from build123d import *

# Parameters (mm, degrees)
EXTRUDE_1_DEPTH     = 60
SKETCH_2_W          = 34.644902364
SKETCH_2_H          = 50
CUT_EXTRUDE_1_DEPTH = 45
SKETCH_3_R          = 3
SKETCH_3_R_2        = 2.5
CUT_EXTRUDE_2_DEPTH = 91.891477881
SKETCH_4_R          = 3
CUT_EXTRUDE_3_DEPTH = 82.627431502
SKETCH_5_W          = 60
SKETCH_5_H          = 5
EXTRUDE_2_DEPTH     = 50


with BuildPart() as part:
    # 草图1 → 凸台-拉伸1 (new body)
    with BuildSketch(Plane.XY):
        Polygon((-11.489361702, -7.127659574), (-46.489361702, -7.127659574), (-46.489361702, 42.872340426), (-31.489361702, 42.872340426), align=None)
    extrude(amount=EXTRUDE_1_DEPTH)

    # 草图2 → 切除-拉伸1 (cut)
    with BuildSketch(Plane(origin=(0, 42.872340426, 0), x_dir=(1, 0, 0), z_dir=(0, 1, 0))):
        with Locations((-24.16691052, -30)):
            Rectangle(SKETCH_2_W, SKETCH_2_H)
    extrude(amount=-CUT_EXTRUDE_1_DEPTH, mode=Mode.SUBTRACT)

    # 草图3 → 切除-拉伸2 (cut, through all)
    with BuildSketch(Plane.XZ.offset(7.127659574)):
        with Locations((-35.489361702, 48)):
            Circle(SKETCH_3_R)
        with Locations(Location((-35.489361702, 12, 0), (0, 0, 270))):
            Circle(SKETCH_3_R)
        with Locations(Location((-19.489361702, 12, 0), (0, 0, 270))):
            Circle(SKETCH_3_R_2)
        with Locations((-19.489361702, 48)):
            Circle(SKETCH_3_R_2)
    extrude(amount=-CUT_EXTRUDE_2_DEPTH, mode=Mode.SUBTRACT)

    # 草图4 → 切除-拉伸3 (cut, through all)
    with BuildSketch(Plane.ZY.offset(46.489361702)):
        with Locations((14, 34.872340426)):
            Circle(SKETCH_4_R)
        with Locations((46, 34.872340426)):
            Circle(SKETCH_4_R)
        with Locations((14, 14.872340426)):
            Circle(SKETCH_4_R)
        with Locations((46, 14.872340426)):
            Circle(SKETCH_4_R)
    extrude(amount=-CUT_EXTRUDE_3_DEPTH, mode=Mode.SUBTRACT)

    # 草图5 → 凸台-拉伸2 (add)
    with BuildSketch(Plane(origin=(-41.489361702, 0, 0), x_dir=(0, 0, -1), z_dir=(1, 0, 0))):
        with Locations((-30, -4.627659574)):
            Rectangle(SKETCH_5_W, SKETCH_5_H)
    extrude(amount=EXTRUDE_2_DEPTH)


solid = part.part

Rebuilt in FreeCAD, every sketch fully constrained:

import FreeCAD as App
import Part
import Sketcher
Q = App.Units.Quantity


def add_polygon(sketch, points):
    """Adds a closed chain of lines whose ends are joined by coincident constraints."""
    first, n = sketch.GeometryCount, len(points)
    for a, b in zip(points, points[1:] + points[:1]):
        sketch.addGeometry(Part.LineSegment(App.Vector(*a, 0), App.Vector(*b, 0)), False)
    for i in range(n):
        sketch.addConstraint(Sketcher.Constraint("Coincident", first + i, 2, first + (i + 1) % n, 1))

doc = App.newDocument("Part")
params = doc.addObject("Spreadsheet::Sheet", "Params")
for row, (alias, value) in enumerate([
    ("sketch1_width", "35 mm"),
    ("sketch1_width2", "15 mm"),
    ("sketch1_height", "50 mm"),
    ("pad1_length", "60 mm"),
    ("sketch2_height", "50 mm"),
    ("pocket1_length", "45 mm"),
    ("sketch3_diameter", "6 mm"),
    ("sketch3_diameter2", "5 mm"),
    ("sketch4_diameter", "6 mm"),
    ("sketch5_width", "5 mm"),
    ("sketch5_height", "60 mm"),
    ("pad2_length", "50 mm"),
], start=1):
    params.set(f"A{row}", alias)
    params.set(f"B{row}", "=" + value)
    params.setAlias(f"B{row}", alias)

body = doc.addObject("PartDesign::Body", "Body")

# Sketch on XY plane
sketch1 = doc.addObject("Sketcher::SketchObject", "Sketch")
body.addObject(sketch1)
sketch1.AttachmentSupport = (doc.XY_Plane, [""])
sketch1.MapMode = "FlatFace"
add_polygon(sketch1, [(-46, -7), (-11, -7), (-31, 43), (-46, 43)])  # lines 0-3
sketch1.addConstraint([
    Sketcher.Constraint("Horizontal", 0),
    Sketcher.Constraint("Horizontal", 2),
    Sketcher.Constraint("Vertical", 3),
    Sketcher.Constraint("DistanceX", 0, 1, 0, 2, Q("35 mm")),
    Sketcher.Constraint("DistanceX", 2, 2, 2, 1, Q("15 mm")),
    Sketcher.Constraint("DistanceY", 3, 2, 3, 1, Q("50 mm")),
    Sketcher.Constraint("DistanceX", 0, 2, -1, 1, Q("11.489362 mm")),
    Sketcher.Constraint("DistanceY", 0, 2, -1, 1, Q("7.12766 mm")),
])
sketch1.setExpression("Constraints[7]", "Params.sketch1_width")
sketch1.setExpression("Constraints[8]", "Params.sketch1_width2")
sketch1.setExpression("Constraints[9]", "Params.sketch1_height")
pad1 = doc.addObject("PartDesign::Pad", "Pad")
body.addObject(pad1)
pad1.Profile = sketch1
pad1.setExpression("Length", "Params.pad1_length")

# Sketch on XZ plane
sketch2 = doc.addObject("Sketcher::SketchObject", "Sketch001")
body.addObject(sketch2)
sketch2.AttachmentSupport = (doc.XZ_Plane, [""])
sketch2.MapMode = "FlatFace"
sketch2.AttachmentOffset = App.Placement(App.Vector(0, 0, -42.87234), App.Rotation())
add_polygon(sketch2, [(-41, 5), (-41, 55), (-7, 55), (-7, 5)])  # lines 0-3
sketch2.addConstraint([
    Sketcher.Constraint("Vertical", 0),
    Sketcher.Constraint("Horizontal", 1),
    Sketcher.Constraint("Vertical", 2),
    Sketcher.Constraint("Horizontal", 3),
    Sketcher.Constraint("DistanceY", 0, 1, 0, 2, Q("50 mm")),
    Sketcher.Constraint("DistanceY", -1, 1, 0, 2, Q("55 mm")),
    Sketcher.Constraint("DistanceX", 1, 1, 1, 2, Q("34.644902 mm")),
    Sketcher.Constraint("DistanceX", 0, 2, -1, 1, Q("41.489362 mm")),
])
sketch2.setExpression("Constraints[8]", "Params.sketch2_height")
pocket1 = doc.addObject("PartDesign::Pocket", "Pocket")
body.addObject(pocket1)
pocket1.Profile = sketch2
pocket1.setExpression("Length", "Params.pocket1_length")
pocket1.Reversed = True

# Sketch on XZ plane
sketch3 = doc.addObject("Sketcher::SketchObject", "Sketch002")
body.addObject(sketch3)
sketch3.AttachmentSupport = (doc.XZ_Plane, [""])
sketch3.MapMode = "FlatFace"
sketch3.AttachmentOffset = App.Placement(App.Vector(0, 0, 7.12766), App.Rotation())
sketch3.addGeometry([
    Part.Circle(App.Vector(-35.5, 48, 0), App.Vector(0, 0, 1), 3),
    Part.Circle(App.Vector(-35.5, 12, 0), App.Vector(0, 0, 1), 3),
    Part.Circle(App.Vector(-19.5, 12, 0), App.Vector(0, 0, 1), 2.5),
    Part.Circle(App.Vector(-19.5, 48, 0), App.Vector(0, 0, 1), 2.5),
], False)
sketch3.addConstraint([
    Sketcher.Constraint("Equal", 0, 1),
    Sketcher.Constraint("Equal", 2, 3),
    Sketcher.Constraint("Horizontal", 1, 3, 2, 3),
    Sketcher.Constraint("Horizontal", 0, 3, 3, 3),
    Sketcher.Constraint("Vertical", 0, 3, 1, 3),
    Sketcher.Constraint("Vertical", 2, 3, 3, 3),
    Sketcher.Constraint("Diameter", 0, Q("6 mm")),
    Sketcher.Constraint("Diameter", 2, Q("5 mm")),
    Sketcher.Constraint("DistanceY", -1, 1, 0, 3, Q("48 mm")),
    Sketcher.Constraint("DistanceY", -1, 1, 1, 3, Q("12 mm")),
    Sketcher.Constraint("DistanceX", 1, 3, 2, 3, Q("16 mm")),
    Sketcher.Constraint("DistanceX", 0, 3, -1, 1, Q("35.489362 mm")),
])
sketch3.setExpression("Constraints[6]", "Params.sketch3_diameter")
sketch3.setExpression("Constraints[7]", "Params.sketch3_diameter2")
pocket2 = doc.addObject("PartDesign::Pocket", "Pocket001")
body.addObject(pocket2)
pocket2.Profile = sketch3
pocket2.Type = "ThroughAll"

# Sketch on YZ plane
sketch4 = doc.addObject("Sketcher::SketchObject", "Sketch003")
body.addObject(sketch4)
sketch4.AttachmentSupport = (doc.YZ_Plane, [""])
sketch4.MapMode = "FlatFace"
sketch4.AttachmentOffset = App.Placement(App.Vector(0, 0, -46.489362), App.Rotation())
sketch4.addGeometry([
    Part.Circle(App.Vector(34.9, 14, 0), App.Vector(0, 0, 1), 3),
    Part.Circle(App.Vector(34.9, 46, 0), App.Vector(0, 0, 1), 3),
    Part.Circle(App.Vector(14.9, 14, 0), App.Vector(0, 0, 1), 3),
    Part.Circle(App.Vector(14.9, 46, 0), App.Vector(0, 0, 1), 3),
], False)
sketch4.addConstraint([
    Sketcher.Constraint("Equal", 0, 1),
    Sketcher.Constraint("Equal", 1, 2),
    Sketcher.Constraint("Equal", 2, 3),
    Sketcher.Constraint("Horizontal", 0, 3, 2, 3),
    Sketcher.Constraint("Horizontal", 1, 3, 3, 3),
    Sketcher.Constraint("Vertical", 0, 3, 1, 3),
    Sketcher.Constraint("Vertical", 2, 3, 3, 3),
    Sketcher.Constraint("Diameter", 0, Q("6 mm")),
    Sketcher.Constraint("DistanceY", -1, 1, 0, 3, Q("14 mm")),
    Sketcher.Constraint("DistanceY", -1, 1, 1, 3, Q("46 mm")),
    Sketcher.Constraint("DistanceX", 2, 3, 0, 3, Q("20 mm")),
    Sketcher.Constraint("DistanceX", -1, 1, 0, 3, Q("34.87234 mm")),
])
sketch4.setExpression("Constraints[7]", "Params.sketch4_diameter")
pocket3 = doc.addObject("PartDesign::Pocket", "Pocket002")
body.addObject(pocket3)
pocket3.Profile = sketch4
pocket3.Type = "ThroughAll"
pocket3.Reversed = True

# Sketch on YZ plane
sketch5 = doc.addObject("Sketcher::SketchObject", "Sketch004")
body.addObject(sketch5)
sketch5.AttachmentSupport = (doc.YZ_Plane, [""])
sketch5.MapMode = "FlatFace"
sketch5.AttachmentOffset = App.Placement(App.Vector(0, 0, -41.489362), App.Rotation())
add_polygon(sketch5, [(-2, 60), (-7, 60), (-7, 0), (-2, 0)])  # lines 0-3
sketch5.addConstraint([
    Sketcher.Constraint("Horizontal", 0),
    Sketcher.Constraint("Vertical", 1),
    Sketcher.Constraint("Horizontal", 2),
    Sketcher.Constraint("Vertical", 3),
    Sketcher.Constraint("PointOnObject", 1, 2, -1),
    Sketcher.Constraint("DistanceX", 0, 2, 0, 1, Q("5 mm")),
    Sketcher.Constraint("DistanceY", 1, 2, 1, 1, Q("60 mm")),
    Sketcher.Constraint("DistanceX", 0, 2, -1, 1, Q("7.12766 mm")),
])
sketch5.setExpression("Constraints[9]", "Params.sketch5_width")
sketch5.setExpression("Constraints[10]", "Params.sketch5_height")
pad2 = doc.addObject("PartDesign::Pad", "Pad001")
body.addObject(pad2)
pad2.Profile = sketch5
pad2.setExpression("Length", "Params.pad2_length")

doc.recompute()
